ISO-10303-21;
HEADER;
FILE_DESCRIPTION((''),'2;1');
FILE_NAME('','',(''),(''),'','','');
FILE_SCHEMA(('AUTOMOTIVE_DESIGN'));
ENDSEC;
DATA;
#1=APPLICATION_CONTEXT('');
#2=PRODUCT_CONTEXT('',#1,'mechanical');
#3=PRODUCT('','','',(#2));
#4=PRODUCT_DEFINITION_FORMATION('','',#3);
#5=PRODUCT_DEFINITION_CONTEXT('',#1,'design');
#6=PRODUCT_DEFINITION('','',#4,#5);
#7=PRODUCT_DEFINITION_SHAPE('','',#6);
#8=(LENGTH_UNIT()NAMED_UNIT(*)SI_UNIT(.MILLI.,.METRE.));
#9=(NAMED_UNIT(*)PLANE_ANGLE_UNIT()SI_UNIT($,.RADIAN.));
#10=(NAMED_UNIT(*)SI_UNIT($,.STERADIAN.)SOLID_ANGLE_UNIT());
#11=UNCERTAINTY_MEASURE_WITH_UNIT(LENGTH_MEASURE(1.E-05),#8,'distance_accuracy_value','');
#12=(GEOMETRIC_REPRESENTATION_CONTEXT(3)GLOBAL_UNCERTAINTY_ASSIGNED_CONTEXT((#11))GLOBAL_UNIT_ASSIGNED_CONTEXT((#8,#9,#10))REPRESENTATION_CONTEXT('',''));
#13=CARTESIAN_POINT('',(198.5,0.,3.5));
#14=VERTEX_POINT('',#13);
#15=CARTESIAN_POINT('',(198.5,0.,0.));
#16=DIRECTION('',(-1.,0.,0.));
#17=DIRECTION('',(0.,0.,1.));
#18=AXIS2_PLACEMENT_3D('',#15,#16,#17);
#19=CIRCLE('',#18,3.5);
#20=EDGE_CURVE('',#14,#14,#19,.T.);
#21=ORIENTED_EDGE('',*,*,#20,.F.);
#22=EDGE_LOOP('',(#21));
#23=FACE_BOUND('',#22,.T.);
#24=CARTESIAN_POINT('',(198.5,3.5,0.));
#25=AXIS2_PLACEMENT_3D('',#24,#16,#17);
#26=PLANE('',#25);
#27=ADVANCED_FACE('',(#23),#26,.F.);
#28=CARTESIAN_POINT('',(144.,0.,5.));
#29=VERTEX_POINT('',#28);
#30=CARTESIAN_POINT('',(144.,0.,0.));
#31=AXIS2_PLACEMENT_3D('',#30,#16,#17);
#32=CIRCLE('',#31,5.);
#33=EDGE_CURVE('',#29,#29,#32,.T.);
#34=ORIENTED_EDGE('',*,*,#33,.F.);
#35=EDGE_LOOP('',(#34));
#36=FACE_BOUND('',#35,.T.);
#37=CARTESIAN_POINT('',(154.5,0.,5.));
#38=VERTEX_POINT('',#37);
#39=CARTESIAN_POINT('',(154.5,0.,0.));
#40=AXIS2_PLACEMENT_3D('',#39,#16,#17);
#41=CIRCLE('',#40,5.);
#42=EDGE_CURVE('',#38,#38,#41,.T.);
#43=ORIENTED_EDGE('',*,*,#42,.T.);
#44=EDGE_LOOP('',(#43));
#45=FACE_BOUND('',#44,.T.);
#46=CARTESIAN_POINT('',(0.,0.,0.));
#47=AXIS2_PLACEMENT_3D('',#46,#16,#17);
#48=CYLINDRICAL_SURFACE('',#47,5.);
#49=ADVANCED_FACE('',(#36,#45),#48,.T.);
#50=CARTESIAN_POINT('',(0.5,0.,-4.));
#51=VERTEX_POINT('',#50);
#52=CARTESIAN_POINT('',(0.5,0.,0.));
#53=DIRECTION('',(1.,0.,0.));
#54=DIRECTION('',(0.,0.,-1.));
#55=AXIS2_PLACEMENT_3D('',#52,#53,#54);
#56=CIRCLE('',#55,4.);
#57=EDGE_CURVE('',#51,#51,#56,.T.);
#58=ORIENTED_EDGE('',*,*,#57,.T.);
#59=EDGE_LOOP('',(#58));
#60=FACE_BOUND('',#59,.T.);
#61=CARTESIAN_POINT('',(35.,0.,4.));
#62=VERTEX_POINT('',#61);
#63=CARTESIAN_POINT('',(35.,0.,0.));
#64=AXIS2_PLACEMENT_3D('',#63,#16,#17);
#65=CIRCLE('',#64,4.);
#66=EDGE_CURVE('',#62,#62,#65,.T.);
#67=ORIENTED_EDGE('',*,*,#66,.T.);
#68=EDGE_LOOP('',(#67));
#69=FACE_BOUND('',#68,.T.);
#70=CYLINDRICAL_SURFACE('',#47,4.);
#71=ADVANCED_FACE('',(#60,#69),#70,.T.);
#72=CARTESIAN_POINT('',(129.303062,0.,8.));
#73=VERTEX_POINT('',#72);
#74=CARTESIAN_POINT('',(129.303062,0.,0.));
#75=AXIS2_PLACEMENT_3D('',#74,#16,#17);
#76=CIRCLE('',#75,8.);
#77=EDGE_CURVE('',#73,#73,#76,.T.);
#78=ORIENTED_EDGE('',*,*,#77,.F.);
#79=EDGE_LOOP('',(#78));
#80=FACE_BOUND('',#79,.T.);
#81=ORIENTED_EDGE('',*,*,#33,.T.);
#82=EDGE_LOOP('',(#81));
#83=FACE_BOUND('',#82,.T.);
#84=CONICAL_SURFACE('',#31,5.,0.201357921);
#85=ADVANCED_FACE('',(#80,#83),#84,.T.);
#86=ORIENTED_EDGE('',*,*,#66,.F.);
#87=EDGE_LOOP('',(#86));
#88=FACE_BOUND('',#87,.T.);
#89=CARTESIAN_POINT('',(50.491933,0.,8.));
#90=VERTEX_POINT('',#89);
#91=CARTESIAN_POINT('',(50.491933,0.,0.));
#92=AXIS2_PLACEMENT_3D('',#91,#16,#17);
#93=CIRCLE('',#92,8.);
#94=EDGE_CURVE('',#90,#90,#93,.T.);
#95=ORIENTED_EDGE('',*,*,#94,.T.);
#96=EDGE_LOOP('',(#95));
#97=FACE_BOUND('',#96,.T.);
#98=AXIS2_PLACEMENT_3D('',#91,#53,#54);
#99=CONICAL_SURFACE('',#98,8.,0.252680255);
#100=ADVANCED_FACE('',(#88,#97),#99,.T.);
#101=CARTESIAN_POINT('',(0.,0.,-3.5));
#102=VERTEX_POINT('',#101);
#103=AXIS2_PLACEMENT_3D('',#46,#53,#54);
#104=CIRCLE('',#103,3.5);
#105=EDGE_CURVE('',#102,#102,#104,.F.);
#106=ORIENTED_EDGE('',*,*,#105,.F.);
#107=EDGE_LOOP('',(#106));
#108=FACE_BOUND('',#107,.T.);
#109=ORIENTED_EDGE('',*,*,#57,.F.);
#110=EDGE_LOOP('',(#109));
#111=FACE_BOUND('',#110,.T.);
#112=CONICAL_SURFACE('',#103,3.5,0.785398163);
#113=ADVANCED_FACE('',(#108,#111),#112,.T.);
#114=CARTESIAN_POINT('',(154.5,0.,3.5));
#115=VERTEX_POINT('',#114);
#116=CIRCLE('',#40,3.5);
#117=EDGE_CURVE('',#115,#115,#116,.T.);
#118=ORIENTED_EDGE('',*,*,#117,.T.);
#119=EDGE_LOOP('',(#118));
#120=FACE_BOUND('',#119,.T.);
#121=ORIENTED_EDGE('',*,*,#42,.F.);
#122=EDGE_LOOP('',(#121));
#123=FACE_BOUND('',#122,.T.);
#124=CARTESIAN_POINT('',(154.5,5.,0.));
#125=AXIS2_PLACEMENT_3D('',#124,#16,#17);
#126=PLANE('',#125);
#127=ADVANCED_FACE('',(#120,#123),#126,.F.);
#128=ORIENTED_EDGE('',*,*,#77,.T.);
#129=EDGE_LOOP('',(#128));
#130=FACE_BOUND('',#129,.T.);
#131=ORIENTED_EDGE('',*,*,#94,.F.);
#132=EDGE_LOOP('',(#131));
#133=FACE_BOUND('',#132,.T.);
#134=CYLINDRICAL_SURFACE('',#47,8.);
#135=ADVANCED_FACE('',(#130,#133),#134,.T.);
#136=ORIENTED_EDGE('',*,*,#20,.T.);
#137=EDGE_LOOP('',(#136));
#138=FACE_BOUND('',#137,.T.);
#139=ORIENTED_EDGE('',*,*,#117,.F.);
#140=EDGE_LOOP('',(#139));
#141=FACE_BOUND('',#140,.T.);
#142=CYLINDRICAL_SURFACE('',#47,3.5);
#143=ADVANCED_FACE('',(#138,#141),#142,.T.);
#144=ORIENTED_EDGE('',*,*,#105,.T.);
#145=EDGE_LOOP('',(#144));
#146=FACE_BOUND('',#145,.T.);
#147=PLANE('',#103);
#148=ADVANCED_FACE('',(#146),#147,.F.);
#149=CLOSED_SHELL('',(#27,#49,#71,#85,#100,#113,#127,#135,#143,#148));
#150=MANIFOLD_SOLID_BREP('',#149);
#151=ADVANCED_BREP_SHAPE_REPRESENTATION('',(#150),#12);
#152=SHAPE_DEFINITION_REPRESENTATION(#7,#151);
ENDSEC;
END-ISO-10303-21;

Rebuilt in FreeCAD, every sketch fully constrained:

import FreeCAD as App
import Part
import Sketcher
Q = App.Units.Quantity


def edges_at(feature, points):
    """Names of the edges that pass closest to the given points."""
    edges = feature.Shape.Edges
    near = lambda p: min(range(len(edges)), key=lambda i: edges[i].distToShape(Part.Vertex(*p))[0])
    return sorted({f"Edge{near(p) + 1}" for p in points})


def add_polygon(sketch, points):
    """Adds a closed chain of lines whose ends are joined by coincident constraints."""
    first, n = sketch.GeometryCount, len(points)
    for a, b in zip(points, points[1:] + points[:1]):
        sketch.addGeometry(Part.LineSegment(App.Vector(*a, 0), App.Vector(*b, 0)), False)
    for i in range(n):
        sketch.addConstraint(Sketcher.Constraint("Coincident", first + i, 2, first + (i + 1) % n, 1))

doc = App.newDocument("Part")
body = doc.addObject("PartDesign::Body", "Body")

# Sketch on XY plane
sketch1 = doc.addObject("Sketcher::SketchObject", "Sketch")
body.addObject(sketch1)
sketch1.AttachmentSupport = (doc.XY_Plane, [""])
sketch1.MapMode = "FlatFace"
add_polygon(sketch1, [(0, 4), (0, 0), (198.5, 0), (198.5, 3.5), (154.5, 3.5), (154.5, 5), (144, 5), (129.3, 8), (50.5, 8), (35, 4)])  # lines 0-9
sketch1.addConstraint([
    Sketcher.Constraint("Vertical", 0),
    Sketcher.Constraint("Horizontal", 1),
    Sketcher.Constraint("Vertical", 2),
    Sketcher.Constraint("Horizontal", 3),
    Sketcher.Constraint("Vertical", 4),
    Sketcher.Constraint("Horizontal", 5),
    Sketcher.Constraint("Horizontal", 7),
    Sketcher.Constraint("Horizontal", 9),
    Sketcher.Constraint("Coincident", 0, 2, -1, 1),
    Sketcher.Constraint("DistanceX", 3, 2, 3, 1, Q("44 mm")),
    Sketcher.Constraint("DistanceX", 9, 2, 9, 1, Q("35 mm")),
    Sketcher.Constraint("DistanceY", 0, 2, 0, 1, Q("4 mm")),
    Sketcher.Constraint("Distance", 6, Q("15 mm")),
    Sketcher.Constraint("Distance", 8, Q("16 mm")),
    Sketcher.Constraint("DistanceX", 1, 1, 1, 2, Q("198.5 mm")),
    Sketcher.Constraint("DistanceX", 5, 2, 5, 1, Q("10.5 mm")),
    Sketcher.Constraint("DistanceY", 2, 1, 2, 2, Q("3.5 mm")),
    Sketcher.Constraint("DistanceY", 4, 1, 4, 2, Q("1.5 mm")),
    Sketcher.Constraint("DistanceY", -1, 1, 6, 2, Q("8 mm")),
])
revolution = doc.addObject("PartDesign::Revolution", "Revolution")
body.addObject(revolution)
revolution.Profile = sketch1
revolution.ReferenceAxis = (sketch1, ["H_Axis"])
revolution.Angle = 360
doc.recompute()

chamfer = doc.addObject("PartDesign::Chamfer", "Chamfer")
body.addObject(chamfer)
chamfer.Base = (revolution, edges_at(revolution, [(0, 0, -4)]))
chamfer.Size = 0.5

doc.recompute()
